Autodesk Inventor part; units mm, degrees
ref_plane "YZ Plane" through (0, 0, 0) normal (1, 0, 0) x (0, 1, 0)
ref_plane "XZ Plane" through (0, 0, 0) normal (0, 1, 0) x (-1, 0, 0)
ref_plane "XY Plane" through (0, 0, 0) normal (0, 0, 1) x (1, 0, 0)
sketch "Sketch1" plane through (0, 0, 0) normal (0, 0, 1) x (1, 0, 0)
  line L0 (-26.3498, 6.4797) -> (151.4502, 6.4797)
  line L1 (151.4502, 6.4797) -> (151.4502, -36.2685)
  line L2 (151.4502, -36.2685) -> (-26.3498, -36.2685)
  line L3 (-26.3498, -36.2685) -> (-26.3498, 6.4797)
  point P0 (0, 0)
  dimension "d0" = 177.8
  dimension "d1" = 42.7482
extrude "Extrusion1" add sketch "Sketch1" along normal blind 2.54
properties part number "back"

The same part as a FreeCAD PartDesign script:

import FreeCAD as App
import Part
import Sketcher

V = App.Vector
Q = App.Units.Quantity

doc = App.newDocument("Part")
body = doc.addObject("PartDesign::Body", "Body")

sketch1 = body.newObject("Sketcher::SketchObject", "Sketch")
sketch1.AttachmentSupport = (doc.getObject("XY_Plane"), [""])
sketch1.MapMode = "FlatFace"
sketch1.addGeometry(Part.LineSegment(V(151.4502, 6.4797, 0), V(-26.3498, 6.4797, 0)), False)
sketch1.addGeometry(Part.LineSegment(V(-26.3498, 6.4797, 0), V(-26.3498, -36.2685, 0)), False)
sketch1.addGeometry(Part.LineSegment(V(-26.3498, -36.2685, 0), V(151.4502, -36.2685, 0)), False)
sketch1.addGeometry(Part.LineSegment(V(151.4502, -36.2685, 0), V(151.4502, 6.4797, 0)), False)
sketch1.addConstraint(Sketcher.Constraint("Coincident", 0, 2, 1, 1))
sketch1.addConstraint(Sketcher.Constraint("Coincident", 1, 2, 2, 1))
sketch1.addConstraint(Sketcher.Constraint("Coincident", 2, 2, 3, 1))
sketch1.addConstraint(Sketcher.Constraint("Coincident", 3, 2, 0, 1))
sketch1.addConstraint(Sketcher.Constraint("Horizontal", 0))
sketch1.addConstraint(Sketcher.Constraint("Vertical", 1))
sketch1.addConstraint(Sketcher.Constraint("Horizontal", 2))
sketch1.addConstraint(Sketcher.Constraint("Vertical", 3))
sketch1.addConstraint(Sketcher.Constraint("DistanceX", 0, 2, 0, 1, Q("7 in")))
sketch1.addConstraint(Sketcher.Constraint("DistanceY", 1, 2, 1, 1, Q("1.683 in")))
sketch1.addConstraint(Sketcher.Constraint("DistanceX", 0, 2, -1, 1, Q("1.0374 in")))
sketch1.addConstraint(Sketcher.Constraint("DistanceY", -1, 1, 0, 2, Q("0.2551 in")))
pad1 = body.newObject("PartDesign::Pad", "Pad")
pad1.Profile = sketch1
pad1.Length = Q("0.1 in")

doc.recompute()
